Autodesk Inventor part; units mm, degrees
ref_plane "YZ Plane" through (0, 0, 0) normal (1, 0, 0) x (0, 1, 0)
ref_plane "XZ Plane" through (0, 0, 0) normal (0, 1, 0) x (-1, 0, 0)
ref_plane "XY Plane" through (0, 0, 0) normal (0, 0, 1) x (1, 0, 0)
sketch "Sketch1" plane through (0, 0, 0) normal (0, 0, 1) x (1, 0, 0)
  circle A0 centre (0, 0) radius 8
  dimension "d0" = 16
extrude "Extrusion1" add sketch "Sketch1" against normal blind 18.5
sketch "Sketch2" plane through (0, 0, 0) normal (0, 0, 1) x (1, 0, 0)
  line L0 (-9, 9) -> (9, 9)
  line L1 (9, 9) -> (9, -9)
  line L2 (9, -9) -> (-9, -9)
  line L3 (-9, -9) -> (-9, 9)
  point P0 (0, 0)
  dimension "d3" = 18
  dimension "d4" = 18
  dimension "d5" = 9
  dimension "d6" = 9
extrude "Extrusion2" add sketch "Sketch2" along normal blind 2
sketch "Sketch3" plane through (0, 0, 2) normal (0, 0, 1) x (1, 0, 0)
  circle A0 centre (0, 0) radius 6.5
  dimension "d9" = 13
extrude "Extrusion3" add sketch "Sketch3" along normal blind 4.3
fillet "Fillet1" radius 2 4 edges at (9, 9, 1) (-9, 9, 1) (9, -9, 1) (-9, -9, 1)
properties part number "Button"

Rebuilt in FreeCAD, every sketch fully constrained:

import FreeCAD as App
import Part
import Sketcher


def edges_at(feature, points):
    """Names of the edges that pass closest to the given points."""
    edges = feature.Shape.Edges
    near = lambda p: min(range(len(edges)), key=lambda i: edges[i].distToShape(Part.Vertex(*p))[0])
    return sorted({f"Edge{near(p) + 1}" for p in points})

doc = App.newDocument("Part")
body = doc.addObject("PartDesign::Body", "Body")

# Sketch on XY plane
sketch1 = body.newObject("Sketcher::SketchObject", "Sketch")
sketch1.AttachmentSupport = (doc.getObject("XY_Plane"), [""])
sketch1.MapMode = "FlatFace"
sketch1.addGeometry(Part.Circle(App.Vector(0, 0, 0), App.Vector(0, 0, 1), 8), False)
sketch1.addConstraint(Sketcher.Constraint("Coincident", 0, 3, -1, 1))
sketch1.addConstraint(Sketcher.Constraint("Diameter", 0, 16.0))
pad1 = body.newObject("PartDesign::Pad", "Pad")
pad1.Profile = sketch1
pad1.Length = 18.5
pad1.Reversed = True

# Sketch on XY plane
sketch2 = body.newObject("Sketcher::SketchObject", "Sketch001")
sketch2.AttachmentSupport = (doc.getObject("XY_Plane"), [""])
sketch2.MapMode = "FlatFace"
sketch2.addGeometry(Part.LineSegment(App.Vector(9, 9, 0), App.Vector(-9, 9, 0)), False)
sketch2.addGeometry(Part.LineSegment(App.Vector(-9, 9, 0), App.Vector(-9, -9, 0)), False)
sketch2.addGeometry(Part.LineSegment(App.Vector(-9, -9, 0), App.Vector(9, -9, 0)), False)
sketch2.addGeometry(Part.LineSegment(App.Vector(9, -9, 0), App.Vector(9, 9, 0)), False)
sketch2.addConstraint(Sketcher.Constraint("Coincident", 0, 2, 1, 1))
sketch2.addConstraint(Sketcher.Constraint("Coincident", 1, 2, 2, 1))
sketch2.addConstraint(Sketcher.Constraint("Coincident", 2, 2, 3, 1))
sketch2.addConstraint(Sketcher.Constraint("Coincident", 3, 2, 0, 1))
sketch2.addConstraint(Sketcher.Constraint("Horizontal", 0))
sketch2.addConstraint(Sketcher.Constraint("Vertical", 1))
sketch2.addConstraint(Sketcher.Constraint("Horizontal", 2))
sketch2.addConstraint(Sketcher.Constraint("Vertical", 3))
sketch2.addConstraint(Sketcher.Constraint("Symmetric", 0, 2, 2, 2, -1, 1))
sketch2.addConstraint(Sketcher.Constraint("Equal", 2, 1))
sketch2.addConstraint(Sketcher.Constraint("DistanceX", 0, 2, 0, 1, 18.0))
pad2 = body.newObject("PartDesign::Pad", "Pad001")
pad2.Profile = sketch2
pad2.Length = 2

# Sketch on XY plane
sketch3 = body.newObject("Sketcher::SketchObject", "Sketch002")
sketch3.AttachmentSupport = (doc.getObject("XY_Plane"), [""])
sketch3.MapMode = "FlatFace"
sketch3.AttachmentOffset = App.Placement(App.Vector(0, 0, 2), App.Rotation())
sketch3.addGeometry(Part.Circle(App.Vector(0, 0, 0), App.Vector(0, 0, 1), 6), False)
sketch3.addConstraint(Sketcher.Constraint("Coincident", 0, 3, -1, 1))
sketch3.addConstraint(Sketcher.Constraint("Diameter", 0, 13.0))
pad3 = body.newObject("PartDesign::Pad", "Pad002")
pad3.Profile = sketch3
pad3.Length = 4.3
doc.recompute()

fillet = body.newObject("PartDesign::Fillet", "Fillet")
fillet.Base = (pad3, edges_at(pad3, [
    (9, 9, 1),
    (-9, 9, 1),
    (9, -9, 1),
    (-9, -9, 1),
]))
fillet.Radius = 2

doc.recompute()
